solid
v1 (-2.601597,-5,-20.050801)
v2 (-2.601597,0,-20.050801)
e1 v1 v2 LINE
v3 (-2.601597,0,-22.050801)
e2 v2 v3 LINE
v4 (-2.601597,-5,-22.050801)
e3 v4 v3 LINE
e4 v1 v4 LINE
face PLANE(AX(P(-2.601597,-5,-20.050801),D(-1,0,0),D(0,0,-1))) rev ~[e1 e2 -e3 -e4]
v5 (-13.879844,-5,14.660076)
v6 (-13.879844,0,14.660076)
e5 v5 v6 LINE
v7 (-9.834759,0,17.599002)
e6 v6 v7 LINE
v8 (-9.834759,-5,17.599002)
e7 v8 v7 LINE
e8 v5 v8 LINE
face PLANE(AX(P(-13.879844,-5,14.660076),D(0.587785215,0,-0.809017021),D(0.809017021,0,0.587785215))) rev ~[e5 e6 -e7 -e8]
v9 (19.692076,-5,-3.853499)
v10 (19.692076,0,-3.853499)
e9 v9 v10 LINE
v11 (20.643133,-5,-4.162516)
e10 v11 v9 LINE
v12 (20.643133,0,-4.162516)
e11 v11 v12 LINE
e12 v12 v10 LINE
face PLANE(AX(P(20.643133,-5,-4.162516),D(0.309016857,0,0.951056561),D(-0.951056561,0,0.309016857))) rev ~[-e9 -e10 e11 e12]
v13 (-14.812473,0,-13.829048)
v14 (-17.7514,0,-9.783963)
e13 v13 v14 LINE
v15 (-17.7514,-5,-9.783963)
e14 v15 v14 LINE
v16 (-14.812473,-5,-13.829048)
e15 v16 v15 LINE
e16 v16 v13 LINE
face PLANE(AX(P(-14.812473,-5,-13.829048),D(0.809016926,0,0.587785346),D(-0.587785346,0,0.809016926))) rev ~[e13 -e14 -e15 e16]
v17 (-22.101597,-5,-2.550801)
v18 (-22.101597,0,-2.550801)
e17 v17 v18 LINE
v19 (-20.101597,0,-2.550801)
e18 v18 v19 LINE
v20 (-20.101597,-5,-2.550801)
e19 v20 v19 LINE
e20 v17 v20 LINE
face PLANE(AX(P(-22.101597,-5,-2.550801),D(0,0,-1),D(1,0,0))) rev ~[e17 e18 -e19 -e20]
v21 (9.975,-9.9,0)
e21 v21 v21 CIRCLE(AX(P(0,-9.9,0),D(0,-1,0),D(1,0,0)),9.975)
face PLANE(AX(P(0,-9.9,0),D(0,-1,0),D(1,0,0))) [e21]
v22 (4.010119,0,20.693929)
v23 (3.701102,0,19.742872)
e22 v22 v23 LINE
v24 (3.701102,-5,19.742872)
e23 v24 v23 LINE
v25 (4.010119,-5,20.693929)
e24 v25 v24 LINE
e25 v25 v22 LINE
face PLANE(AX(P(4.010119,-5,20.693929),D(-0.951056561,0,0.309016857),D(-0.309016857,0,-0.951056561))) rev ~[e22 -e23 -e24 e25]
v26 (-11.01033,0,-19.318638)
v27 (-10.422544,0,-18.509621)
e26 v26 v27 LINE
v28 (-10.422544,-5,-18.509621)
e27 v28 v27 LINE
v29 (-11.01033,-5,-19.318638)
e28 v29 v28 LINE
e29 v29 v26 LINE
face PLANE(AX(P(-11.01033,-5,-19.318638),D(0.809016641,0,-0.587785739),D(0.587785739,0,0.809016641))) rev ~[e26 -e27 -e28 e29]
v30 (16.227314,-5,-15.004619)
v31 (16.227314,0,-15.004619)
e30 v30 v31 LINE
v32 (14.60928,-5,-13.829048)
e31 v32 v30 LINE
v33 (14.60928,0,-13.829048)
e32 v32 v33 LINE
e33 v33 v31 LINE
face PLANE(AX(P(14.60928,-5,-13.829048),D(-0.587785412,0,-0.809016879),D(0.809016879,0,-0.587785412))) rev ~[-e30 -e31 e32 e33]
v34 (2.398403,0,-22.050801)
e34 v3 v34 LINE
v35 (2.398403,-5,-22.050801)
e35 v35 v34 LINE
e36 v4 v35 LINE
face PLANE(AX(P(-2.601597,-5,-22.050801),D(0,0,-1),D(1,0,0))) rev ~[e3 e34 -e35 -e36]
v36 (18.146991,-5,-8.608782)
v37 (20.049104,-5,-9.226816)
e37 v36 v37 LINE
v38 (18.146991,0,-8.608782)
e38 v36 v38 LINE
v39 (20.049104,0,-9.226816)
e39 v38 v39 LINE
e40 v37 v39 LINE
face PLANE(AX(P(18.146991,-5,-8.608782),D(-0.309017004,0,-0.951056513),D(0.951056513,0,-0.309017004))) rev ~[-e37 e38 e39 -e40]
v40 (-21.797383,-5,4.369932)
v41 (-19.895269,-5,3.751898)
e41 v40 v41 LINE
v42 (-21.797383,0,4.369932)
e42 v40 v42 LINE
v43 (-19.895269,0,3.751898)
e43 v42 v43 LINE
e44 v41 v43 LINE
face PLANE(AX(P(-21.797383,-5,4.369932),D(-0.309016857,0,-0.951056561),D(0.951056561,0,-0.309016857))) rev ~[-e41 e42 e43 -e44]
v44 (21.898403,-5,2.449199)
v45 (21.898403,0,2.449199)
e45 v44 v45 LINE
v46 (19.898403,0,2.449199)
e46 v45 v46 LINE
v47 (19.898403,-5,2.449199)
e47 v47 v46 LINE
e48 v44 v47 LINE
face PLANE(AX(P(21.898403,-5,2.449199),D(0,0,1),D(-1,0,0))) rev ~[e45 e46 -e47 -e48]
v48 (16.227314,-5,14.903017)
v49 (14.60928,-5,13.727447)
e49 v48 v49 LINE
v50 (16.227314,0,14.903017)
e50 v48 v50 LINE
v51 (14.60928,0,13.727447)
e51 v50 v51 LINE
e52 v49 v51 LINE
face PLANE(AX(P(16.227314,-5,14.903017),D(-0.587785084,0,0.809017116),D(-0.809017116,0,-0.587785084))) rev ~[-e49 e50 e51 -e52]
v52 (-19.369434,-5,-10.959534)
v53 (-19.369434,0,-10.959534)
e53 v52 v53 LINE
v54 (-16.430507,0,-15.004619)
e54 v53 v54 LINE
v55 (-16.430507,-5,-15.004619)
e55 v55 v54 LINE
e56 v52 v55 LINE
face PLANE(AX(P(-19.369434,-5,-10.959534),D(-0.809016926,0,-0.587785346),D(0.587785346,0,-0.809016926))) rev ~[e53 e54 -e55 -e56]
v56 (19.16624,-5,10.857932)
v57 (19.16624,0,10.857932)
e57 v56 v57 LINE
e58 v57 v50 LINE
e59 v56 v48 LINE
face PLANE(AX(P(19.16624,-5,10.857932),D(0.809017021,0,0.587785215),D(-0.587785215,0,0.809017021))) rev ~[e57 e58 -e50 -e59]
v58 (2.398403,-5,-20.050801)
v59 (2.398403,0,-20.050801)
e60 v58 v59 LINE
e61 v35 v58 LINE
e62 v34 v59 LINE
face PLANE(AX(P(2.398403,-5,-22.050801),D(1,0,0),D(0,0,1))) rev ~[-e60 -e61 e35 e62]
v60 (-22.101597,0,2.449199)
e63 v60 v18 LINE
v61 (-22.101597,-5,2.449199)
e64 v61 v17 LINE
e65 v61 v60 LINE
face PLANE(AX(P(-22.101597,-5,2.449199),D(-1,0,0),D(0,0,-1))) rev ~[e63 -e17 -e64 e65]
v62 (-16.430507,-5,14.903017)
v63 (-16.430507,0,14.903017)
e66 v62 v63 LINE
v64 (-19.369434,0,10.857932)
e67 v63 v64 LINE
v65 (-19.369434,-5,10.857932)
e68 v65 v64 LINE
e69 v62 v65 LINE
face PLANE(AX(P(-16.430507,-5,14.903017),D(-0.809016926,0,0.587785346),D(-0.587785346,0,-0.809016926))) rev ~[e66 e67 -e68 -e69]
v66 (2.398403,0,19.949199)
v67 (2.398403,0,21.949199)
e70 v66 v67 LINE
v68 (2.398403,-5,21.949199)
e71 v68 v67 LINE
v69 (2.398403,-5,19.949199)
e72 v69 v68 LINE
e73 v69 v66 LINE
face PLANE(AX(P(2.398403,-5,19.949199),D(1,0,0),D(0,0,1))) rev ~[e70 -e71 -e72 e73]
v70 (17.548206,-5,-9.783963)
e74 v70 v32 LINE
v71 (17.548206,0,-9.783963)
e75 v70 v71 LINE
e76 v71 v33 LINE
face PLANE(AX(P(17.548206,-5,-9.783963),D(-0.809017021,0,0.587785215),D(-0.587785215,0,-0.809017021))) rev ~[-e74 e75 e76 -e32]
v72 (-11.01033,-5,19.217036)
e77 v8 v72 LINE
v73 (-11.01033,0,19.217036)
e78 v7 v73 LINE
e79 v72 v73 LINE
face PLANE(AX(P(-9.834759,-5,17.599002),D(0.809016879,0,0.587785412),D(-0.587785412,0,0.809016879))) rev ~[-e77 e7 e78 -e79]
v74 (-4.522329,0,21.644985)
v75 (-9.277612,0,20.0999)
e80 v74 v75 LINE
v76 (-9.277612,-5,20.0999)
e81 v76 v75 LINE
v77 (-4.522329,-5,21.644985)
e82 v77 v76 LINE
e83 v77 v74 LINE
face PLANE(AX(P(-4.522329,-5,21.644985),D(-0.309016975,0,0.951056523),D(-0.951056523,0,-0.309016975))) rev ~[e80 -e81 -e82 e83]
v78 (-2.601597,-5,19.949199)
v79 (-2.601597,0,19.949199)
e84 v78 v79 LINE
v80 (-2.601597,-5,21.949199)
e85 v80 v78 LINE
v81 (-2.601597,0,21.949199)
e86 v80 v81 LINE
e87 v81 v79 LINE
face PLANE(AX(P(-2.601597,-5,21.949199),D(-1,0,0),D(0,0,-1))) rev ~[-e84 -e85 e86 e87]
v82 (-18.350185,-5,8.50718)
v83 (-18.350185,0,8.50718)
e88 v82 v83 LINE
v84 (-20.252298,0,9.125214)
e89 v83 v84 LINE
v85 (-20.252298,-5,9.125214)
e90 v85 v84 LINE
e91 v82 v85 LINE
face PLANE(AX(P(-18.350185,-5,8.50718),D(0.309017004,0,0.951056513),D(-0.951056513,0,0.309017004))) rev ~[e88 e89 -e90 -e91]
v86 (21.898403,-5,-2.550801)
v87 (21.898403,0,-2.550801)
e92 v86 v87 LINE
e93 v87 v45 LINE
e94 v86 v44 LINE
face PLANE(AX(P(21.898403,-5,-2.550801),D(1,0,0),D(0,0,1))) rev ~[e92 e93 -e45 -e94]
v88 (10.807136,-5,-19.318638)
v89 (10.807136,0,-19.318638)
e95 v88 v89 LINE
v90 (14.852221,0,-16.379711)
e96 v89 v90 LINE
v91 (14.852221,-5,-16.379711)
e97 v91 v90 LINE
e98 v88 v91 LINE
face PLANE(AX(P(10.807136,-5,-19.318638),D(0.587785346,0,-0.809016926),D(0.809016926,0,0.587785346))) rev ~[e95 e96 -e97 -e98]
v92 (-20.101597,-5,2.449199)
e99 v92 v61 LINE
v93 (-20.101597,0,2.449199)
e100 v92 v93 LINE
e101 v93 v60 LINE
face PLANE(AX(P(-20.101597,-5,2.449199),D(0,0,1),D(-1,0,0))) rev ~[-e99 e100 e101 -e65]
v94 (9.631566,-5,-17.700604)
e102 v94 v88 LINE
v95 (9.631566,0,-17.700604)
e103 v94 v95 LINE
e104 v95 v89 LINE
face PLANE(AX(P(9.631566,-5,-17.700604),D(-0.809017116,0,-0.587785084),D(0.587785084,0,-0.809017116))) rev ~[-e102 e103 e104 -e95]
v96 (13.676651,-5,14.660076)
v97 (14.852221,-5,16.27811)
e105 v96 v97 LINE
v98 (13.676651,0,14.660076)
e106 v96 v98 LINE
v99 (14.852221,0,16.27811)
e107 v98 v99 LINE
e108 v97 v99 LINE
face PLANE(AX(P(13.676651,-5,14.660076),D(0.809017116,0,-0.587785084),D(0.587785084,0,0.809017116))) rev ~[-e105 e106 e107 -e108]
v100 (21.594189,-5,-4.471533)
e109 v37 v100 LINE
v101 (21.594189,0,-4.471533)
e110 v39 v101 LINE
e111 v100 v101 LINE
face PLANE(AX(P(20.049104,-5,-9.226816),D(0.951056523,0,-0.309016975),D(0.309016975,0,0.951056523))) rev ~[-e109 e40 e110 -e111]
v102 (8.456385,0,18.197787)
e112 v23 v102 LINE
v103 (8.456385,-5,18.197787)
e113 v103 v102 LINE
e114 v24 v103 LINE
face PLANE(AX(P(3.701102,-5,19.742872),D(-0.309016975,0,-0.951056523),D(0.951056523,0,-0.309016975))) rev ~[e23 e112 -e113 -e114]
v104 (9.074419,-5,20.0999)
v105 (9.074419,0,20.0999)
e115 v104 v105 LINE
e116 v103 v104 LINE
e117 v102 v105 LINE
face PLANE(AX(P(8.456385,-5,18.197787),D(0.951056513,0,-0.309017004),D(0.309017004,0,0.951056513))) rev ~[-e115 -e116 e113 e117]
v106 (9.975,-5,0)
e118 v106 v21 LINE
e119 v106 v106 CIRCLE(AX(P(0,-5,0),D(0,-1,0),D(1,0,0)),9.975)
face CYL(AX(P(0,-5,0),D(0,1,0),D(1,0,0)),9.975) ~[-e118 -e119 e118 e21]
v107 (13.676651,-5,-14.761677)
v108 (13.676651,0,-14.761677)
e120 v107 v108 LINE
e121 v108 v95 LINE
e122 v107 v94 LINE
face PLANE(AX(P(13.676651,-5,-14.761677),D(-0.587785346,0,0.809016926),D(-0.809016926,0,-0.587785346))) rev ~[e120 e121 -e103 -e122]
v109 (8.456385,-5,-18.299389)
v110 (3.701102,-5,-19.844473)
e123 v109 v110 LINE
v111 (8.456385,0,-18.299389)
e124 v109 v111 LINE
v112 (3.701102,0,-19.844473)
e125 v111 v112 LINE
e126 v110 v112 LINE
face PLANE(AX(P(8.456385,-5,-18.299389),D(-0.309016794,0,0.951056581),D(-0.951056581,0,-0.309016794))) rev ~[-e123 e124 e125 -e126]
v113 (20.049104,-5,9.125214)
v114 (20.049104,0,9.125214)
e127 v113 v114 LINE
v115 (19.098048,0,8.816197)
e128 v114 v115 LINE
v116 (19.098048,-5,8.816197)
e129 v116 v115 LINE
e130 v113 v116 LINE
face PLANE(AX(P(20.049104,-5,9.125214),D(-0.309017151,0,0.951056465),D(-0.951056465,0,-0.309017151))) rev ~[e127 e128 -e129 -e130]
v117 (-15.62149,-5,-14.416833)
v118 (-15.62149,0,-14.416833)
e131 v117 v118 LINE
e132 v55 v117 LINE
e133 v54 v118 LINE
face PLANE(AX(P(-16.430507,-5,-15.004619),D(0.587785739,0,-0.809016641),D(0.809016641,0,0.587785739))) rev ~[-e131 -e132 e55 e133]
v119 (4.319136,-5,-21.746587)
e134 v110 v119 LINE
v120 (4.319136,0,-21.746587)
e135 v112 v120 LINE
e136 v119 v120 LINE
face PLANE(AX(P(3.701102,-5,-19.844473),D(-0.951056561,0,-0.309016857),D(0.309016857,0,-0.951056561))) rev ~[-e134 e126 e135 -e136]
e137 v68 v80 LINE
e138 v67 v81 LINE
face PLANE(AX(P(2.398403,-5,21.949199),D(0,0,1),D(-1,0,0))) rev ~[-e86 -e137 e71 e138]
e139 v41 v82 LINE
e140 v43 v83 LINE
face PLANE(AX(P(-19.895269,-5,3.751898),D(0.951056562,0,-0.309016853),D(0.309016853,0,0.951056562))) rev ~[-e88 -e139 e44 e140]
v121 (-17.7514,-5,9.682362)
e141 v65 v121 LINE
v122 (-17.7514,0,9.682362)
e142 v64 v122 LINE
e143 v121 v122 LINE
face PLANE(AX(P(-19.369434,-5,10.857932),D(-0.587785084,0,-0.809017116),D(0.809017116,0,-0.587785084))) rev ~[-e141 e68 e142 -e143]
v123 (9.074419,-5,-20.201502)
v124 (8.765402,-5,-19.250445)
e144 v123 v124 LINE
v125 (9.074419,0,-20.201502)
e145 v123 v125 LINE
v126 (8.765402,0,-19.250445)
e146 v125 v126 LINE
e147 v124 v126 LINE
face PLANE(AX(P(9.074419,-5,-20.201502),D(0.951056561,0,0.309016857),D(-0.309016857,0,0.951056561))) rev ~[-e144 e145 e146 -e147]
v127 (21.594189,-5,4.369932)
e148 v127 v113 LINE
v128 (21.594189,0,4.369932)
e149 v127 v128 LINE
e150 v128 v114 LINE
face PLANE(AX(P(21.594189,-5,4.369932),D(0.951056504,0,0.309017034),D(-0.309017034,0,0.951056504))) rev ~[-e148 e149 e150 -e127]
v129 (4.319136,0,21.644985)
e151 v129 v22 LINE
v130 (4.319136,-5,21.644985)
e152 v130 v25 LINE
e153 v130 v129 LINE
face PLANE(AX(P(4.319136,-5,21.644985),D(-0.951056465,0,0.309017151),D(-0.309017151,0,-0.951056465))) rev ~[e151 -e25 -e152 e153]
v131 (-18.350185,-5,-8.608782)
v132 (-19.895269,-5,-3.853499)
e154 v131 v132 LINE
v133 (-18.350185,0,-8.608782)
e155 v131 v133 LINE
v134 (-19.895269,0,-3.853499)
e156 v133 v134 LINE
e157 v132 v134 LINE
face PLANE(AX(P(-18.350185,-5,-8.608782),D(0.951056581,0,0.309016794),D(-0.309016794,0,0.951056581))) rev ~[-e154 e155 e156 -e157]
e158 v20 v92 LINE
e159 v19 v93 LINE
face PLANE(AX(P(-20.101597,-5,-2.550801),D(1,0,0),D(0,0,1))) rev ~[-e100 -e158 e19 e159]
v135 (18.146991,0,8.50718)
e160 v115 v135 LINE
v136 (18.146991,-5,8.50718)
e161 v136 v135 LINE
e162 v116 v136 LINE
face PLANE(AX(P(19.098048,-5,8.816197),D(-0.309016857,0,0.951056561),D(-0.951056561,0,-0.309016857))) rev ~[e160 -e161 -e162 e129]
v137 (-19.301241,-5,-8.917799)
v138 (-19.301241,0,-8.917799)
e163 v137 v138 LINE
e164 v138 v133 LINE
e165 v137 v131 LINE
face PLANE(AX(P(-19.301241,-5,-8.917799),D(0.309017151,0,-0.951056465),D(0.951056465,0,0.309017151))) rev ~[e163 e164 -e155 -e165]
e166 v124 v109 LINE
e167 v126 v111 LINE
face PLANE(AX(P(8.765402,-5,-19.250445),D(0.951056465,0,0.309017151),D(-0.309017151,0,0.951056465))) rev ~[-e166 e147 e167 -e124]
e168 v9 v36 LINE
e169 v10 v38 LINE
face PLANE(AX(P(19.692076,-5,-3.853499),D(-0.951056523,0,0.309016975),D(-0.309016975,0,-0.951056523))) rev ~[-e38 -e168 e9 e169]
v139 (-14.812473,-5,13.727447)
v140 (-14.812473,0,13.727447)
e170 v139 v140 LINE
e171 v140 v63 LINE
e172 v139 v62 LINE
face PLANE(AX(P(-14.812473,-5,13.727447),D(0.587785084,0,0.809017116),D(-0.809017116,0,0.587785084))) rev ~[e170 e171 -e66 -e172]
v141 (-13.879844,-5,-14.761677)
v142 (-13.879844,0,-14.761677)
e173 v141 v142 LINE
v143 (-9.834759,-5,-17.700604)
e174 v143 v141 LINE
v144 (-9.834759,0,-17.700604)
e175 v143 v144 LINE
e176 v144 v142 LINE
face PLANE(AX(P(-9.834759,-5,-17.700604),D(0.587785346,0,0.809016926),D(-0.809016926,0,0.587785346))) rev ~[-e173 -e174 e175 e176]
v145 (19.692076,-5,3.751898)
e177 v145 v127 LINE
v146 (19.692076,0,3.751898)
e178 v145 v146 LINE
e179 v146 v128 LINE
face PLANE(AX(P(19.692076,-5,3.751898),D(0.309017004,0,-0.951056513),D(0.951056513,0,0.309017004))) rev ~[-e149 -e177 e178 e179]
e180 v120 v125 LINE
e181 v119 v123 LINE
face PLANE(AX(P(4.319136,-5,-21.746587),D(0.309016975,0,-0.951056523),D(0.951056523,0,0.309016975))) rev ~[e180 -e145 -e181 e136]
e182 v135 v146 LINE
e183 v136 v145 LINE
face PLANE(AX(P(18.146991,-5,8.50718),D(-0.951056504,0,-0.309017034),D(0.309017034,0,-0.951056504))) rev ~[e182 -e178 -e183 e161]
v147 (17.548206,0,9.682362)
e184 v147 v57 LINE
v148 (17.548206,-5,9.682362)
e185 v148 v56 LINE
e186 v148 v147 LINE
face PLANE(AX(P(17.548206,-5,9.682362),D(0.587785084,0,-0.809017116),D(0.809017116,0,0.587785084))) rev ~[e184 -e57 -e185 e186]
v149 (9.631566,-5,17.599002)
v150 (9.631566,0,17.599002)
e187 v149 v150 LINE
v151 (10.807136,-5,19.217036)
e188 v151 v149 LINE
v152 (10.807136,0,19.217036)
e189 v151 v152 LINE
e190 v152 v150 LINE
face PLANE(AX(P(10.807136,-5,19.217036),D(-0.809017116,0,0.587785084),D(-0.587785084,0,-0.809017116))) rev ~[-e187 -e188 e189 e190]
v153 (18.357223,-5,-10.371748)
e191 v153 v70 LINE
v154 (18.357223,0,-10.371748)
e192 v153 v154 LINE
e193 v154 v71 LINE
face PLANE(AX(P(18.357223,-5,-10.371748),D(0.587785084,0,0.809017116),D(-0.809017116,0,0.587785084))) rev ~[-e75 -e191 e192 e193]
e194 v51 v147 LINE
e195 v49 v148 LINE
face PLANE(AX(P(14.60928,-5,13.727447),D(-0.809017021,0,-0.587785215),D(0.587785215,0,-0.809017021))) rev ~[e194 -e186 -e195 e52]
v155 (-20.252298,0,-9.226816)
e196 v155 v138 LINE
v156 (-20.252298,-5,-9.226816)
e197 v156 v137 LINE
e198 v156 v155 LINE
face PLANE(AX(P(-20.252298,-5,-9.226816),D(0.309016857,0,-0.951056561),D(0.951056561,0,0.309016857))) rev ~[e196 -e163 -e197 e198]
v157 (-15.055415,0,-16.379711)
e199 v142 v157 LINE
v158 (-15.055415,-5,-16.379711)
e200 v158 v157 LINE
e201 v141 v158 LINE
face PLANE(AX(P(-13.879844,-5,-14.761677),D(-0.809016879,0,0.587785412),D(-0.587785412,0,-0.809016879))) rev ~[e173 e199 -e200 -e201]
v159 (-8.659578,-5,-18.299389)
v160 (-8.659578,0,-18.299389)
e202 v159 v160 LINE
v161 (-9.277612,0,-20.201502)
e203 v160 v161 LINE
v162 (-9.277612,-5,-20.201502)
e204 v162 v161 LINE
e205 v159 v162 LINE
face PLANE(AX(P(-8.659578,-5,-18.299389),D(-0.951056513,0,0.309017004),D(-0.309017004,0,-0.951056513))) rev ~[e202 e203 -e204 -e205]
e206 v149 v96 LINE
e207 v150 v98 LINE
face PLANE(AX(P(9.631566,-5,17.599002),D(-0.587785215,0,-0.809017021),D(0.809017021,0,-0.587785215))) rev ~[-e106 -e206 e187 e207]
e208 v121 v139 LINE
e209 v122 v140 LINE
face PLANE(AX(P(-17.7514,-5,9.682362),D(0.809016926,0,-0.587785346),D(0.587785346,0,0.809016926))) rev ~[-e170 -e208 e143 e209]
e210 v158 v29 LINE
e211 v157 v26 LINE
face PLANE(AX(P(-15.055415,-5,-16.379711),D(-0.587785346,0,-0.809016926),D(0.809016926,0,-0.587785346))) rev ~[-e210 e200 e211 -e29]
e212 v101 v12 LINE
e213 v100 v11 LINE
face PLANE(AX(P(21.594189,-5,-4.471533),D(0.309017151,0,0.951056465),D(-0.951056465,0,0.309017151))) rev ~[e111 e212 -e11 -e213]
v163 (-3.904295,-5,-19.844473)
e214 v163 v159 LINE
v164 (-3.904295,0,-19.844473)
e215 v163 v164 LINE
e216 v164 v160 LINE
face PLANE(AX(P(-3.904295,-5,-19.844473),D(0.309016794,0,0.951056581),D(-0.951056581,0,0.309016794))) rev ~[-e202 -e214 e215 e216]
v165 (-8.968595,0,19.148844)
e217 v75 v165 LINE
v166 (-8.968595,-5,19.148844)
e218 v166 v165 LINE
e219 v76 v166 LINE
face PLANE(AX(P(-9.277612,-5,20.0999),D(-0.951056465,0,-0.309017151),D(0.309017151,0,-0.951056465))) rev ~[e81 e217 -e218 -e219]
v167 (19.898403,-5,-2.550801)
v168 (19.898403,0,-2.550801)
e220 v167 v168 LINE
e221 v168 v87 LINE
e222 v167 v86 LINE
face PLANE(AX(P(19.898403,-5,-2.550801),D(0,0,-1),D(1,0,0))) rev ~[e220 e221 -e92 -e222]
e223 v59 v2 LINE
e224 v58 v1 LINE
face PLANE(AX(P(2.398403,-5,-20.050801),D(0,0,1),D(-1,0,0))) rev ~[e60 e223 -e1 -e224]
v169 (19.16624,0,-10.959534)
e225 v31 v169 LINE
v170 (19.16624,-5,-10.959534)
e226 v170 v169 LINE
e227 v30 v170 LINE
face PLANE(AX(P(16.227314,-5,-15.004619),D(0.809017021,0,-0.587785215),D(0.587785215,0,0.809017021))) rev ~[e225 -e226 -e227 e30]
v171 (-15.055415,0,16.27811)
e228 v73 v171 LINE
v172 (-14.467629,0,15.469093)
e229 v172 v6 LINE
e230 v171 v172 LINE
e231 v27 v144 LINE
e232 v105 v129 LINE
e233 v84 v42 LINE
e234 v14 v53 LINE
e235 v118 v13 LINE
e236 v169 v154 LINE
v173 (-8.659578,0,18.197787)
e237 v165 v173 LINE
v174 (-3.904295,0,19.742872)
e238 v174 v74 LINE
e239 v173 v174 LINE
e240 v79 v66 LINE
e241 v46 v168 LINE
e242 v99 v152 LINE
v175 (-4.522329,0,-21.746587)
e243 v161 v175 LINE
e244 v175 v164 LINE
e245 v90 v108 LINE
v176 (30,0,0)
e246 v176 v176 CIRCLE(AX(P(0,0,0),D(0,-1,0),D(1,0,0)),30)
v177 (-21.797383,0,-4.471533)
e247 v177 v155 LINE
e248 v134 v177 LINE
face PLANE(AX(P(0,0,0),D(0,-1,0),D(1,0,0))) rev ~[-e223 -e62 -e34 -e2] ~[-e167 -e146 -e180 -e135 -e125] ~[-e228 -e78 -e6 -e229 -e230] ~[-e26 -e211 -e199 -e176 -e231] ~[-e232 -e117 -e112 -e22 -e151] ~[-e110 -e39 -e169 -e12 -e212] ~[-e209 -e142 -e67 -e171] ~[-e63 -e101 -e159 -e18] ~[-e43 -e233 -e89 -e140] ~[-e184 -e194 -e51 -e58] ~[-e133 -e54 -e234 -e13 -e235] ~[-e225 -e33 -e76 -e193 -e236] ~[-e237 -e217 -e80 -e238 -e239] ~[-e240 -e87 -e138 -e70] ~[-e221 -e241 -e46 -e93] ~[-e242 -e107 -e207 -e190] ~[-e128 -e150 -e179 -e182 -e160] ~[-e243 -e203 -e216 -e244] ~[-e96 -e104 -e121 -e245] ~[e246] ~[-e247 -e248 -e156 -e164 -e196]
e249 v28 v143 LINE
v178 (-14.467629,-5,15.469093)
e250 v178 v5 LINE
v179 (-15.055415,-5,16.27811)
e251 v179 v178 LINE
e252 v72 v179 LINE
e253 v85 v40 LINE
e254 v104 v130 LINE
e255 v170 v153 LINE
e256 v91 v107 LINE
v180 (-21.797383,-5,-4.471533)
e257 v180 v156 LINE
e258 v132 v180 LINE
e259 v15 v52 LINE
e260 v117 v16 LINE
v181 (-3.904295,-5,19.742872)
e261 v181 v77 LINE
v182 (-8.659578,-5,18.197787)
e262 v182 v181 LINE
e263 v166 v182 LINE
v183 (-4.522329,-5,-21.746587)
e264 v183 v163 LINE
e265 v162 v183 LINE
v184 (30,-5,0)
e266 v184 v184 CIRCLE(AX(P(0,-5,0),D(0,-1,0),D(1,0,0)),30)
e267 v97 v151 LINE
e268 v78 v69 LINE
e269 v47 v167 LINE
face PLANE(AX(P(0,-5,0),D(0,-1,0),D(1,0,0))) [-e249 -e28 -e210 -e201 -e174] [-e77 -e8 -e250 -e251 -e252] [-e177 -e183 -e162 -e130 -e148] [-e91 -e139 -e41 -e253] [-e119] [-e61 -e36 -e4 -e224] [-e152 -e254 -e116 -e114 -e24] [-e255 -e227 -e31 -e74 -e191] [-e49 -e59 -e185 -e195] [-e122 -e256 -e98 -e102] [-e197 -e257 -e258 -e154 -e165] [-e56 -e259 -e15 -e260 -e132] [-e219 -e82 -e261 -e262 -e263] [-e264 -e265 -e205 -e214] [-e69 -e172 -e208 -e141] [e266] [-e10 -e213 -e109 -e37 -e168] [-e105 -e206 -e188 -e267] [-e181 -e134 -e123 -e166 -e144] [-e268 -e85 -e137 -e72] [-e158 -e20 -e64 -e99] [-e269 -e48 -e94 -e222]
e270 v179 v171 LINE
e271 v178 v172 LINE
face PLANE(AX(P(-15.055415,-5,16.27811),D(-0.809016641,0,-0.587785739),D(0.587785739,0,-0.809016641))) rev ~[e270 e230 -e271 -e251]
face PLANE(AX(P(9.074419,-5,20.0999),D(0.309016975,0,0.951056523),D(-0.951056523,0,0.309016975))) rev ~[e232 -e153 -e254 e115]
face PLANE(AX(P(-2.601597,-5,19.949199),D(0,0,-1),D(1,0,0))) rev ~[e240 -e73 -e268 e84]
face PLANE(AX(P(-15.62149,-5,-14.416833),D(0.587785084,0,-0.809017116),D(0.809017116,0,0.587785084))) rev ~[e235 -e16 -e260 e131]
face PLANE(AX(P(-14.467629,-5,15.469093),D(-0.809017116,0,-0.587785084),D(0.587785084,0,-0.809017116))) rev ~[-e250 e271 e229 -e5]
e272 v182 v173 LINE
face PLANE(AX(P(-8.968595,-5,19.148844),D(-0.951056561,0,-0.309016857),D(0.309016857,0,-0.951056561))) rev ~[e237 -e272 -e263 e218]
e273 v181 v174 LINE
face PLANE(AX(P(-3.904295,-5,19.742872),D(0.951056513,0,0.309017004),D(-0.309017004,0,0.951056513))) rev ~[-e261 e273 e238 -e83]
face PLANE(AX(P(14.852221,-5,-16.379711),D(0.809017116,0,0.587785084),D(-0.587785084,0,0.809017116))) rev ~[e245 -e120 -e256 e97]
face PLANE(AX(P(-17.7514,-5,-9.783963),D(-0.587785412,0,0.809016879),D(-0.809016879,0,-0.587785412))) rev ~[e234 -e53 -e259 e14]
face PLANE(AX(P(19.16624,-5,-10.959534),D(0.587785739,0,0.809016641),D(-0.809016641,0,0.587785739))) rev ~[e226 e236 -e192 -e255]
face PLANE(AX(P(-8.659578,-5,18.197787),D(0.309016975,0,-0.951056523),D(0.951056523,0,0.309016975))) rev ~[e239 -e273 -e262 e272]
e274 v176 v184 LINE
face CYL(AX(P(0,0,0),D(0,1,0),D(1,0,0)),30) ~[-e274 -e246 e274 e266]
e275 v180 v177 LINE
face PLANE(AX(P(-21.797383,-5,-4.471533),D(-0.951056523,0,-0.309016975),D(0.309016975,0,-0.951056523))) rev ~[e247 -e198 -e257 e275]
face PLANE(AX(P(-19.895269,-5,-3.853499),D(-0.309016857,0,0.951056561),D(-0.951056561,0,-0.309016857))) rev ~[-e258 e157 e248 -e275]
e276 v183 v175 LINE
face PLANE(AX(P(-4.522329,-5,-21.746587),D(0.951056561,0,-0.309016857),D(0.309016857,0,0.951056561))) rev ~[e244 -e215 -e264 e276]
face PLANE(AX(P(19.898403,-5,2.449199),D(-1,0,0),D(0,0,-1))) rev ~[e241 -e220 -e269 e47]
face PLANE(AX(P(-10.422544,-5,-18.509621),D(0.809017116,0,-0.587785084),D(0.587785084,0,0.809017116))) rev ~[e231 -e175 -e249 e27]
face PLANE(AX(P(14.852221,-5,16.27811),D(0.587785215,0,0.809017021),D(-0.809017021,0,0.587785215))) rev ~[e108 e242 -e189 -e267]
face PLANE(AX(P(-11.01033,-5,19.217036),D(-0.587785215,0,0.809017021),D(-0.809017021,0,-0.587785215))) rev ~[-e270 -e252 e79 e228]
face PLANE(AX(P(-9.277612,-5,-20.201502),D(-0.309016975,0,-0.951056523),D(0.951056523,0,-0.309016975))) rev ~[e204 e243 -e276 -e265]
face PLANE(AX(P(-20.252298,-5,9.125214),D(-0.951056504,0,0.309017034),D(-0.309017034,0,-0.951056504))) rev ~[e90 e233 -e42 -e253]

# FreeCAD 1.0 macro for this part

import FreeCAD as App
import Part
import Sketcher

V = App.Vector
Q = App.Units.Quantity

doc = App.newDocument("Part")
body = doc.addObject("PartDesign::Body", "Body")

sketch1 = body.newObject("Sketcher::SketchObject", "Sketch")
sketch1.AttachmentSupport = (doc.getObject("XZ_Plane"), [""])
sketch1.MapMode = "FlatFace"
sketch1.addGeometry(Part.Circle(V(0, 0, 0), V(0, 0, 1), 30), False)
sketch1.addConstraint(Sketcher.Constraint("Coincident", 0, 3, -1, 1))
sketch1.addConstraint(Sketcher.Constraint("Diameter", 0, 60.0))
pad1 = body.newObject("PartDesign::Pad", "Pad")
pad1.Profile = sketch1
pad1.Length = 5

sketch2 = body.newObject("Sketcher::SketchObject", "Sketch001")
sketch2.AttachmentSupport = (doc.getObject("XZ_Plane"), [""])
sketch2.MapMode = "FlatFace"
sketch2.AttachmentOffset = App.Placement(V(0, 0, 5), App.Rotation())
sketch2.addGeometry(Part.LineSegment(V(-2.6, 21.9, 0), V(-2.6, 19.9, 0)), False)
sketch2.addGeometry(Part.LineSegment(V(-2.6, 19.9, 0), V(2.4, 19.9, 0)), False)
sketch2.addGeometry(Part.LineSegment(V(2.4, 19.9, 0), V(2.4, 21.9, 0)), False)
sketch2.addGeometry(Part.LineSegment(V(2.4, 21.9, 0), V(-2.6, 21.9, 0)), False)
sketch2.addGeometry(Part.LineSegment(V(-4.5, 21.6, 0), V(-9.3, 20.1, 0)), False)
sketch2.addGeometry(Part.LineSegment(V(-9.3, 20.1, 0), V(-9, 19.1, 0)), False)
sketch2.addGeometry(Part.LineSegment(V(-9, 19.1, 0), V(-8.7, 18.2, 0)), False)
sketch2.addGeometry(Part.LineSegment(V(-8.7, 18.2, 0), V(-3.9, 19.7, 0)), False)
sketch2.addGeometry(Part.LineSegment(V(-3.9, 19.7, 0), V(-4.5, 21.6, 0)), False)
sketch2.addGeometry(Part.LineSegment(V(-11, 19.2, 0), V(-15.1, 16.3, 0)), False)
sketch2.addGeometry(Part.LineSegment(V(-15.1, 16.3, 0), V(-14.5, 15.5, 0)), False)
sketch2.addGeometry(Part.LineSegment(V(-14.5, 15.5, 0), V(-13.9, 14.7, 0)), False)
sketch2.addGeometry(Part.LineSegment(V(-13.9, 14.7, 0), V(-9.8, 17.6, 0)), False)
sketch2.addGeometry(Part.LineSegment(V(-9.8, 17.6, 0), V(-11, 19.2, 0)), False)
sketch2.addGeometry(Part.LineSegment(V(-16.4, 14.9, 0), V(-19.4, 10.9, 0)), False)
sketch2.addGeometry(Part.LineSegment(V(-19.4, 10.9, 0), V(-17.8, 9.7, 0)), False)
sketch2.addGeometry(Part.LineSegment(V(-17.8, 9.7, 0), V(-14.8, 13.7, 0)), False)
sketch2.addGeometry(Part.LineSegment(V(-14.8, 13.7, 0), V(-16.4, 14.9, 0)), False)
sketch2.addGeometry(Part.LineSegment(V(-20.3, 9.1, 0), V(-21.8, 4.4, 0)), False)
sketch2.addGeometry(Part.LineSegment(V(-21.8, 4.4, 0), V(-19.9, 3.8, 0)), False)
sketch2.addGeometry(Part.LineSegment(V(-19.9, 3.8, 0), V(-18.4, 8.5, 0)), False)
sketch2.addGeometry(Part.LineSegment(V(-18.4, 8.5, 0), V(-20.3, 9.1, 0)), False)
sketch2.addGeometry(Part.LineSegment(V(-22.1, 2.4, 0), V(-22.1, -2.6, 0)), False)
sketch2.addGeometry(Part.LineSegment(V(-22.1, -2.6, 0), V(-20.1, -2.6, 0)), False)
sketch2.addGeometry(Part.LineSegment(V(-20.1, -2.6, 0), V(-20.1, 2.4, 0)), False)
sketch2.addGeometry(Part.LineSegment(V(-20.1, 2.4, 0), V(-22.1, 2.4, 0)), False)
sketch2.addGeometry(Part.LineSegment(V(-21.8, -4.5, 0), V(-20.3, -9.2, 0)), False)
sketch2.addGeometry(Part.LineSegment(V(-20.3, -9.2, 0), V(-19.3, -8.9, 0)), False)
sketch2.addGeometry(Part.LineSegment(V(-19.3, -8.9, 0), V(-18.4, -8.6, 0)), False)
sketch2.addGeometry(Part.LineSegment(V(-18.4, -8.6, 0), V(-19.9, -3.9, 0)), False)
sketch2.addGeometry(Part.LineSegment(V(-19.9, -3.9, 0), V(-21.8, -4.5, 0)), False)
sketch2.addGeometry(Part.LineSegment(V(-19.4, -11, 0), V(-16.4, -15, 0)), False)
sketch2.addGeometry(Part.LineSegment(V(-16.4, -15, 0), V(-15.6, -14.4, 0)), False)
sketch2.addGeometry(Part.LineSegment(V(-15.6, -14.4, 0), V(-14.8, -13.8, 0)), False)
sketch2.addGeometry(Part.LineSegment(V(-14.8, -13.8, 0), V(-17.8, -9.8, 0)), False)
sketch2.addGeometry(Part.LineSegment(V(-17.8, -9.8, 0), V(-19.4, -11, 0)), False)
sketch2.addGeometry(Part.LineSegment(V(-15.1, -16.4, 0), V(-11, -19.3, 0)), False)
sketch2.addGeometry(Part.LineSegment(V(-11, -19.3, 0), V(-10.4, -18.5, 0)), False)
sketch2.addGeometry(Part.LineSegment(V(-10.4, -18.5, 0), V(-9.8, -17.7, 0)), False)
sketch2.addGeometry(Part.LineSegment(V(-9.8, -17.7, 0), V(-13.9, -14.8, 0)), False)
sketch2.addGeometry(Part.LineSegment(V(-13.9, -14.8, 0), V(-15.1, -16.4, 0)), False)
sketch2.addGeometry(Part.LineSegment(V(-9.3, -20.2, 0), V(-4.5, -21.7, 0)), False)
sketch2.addGeometry(Part.LineSegment(V(-4.5, -21.7, 0), V(-3.9, -19.8, 0)), False)
sketch2.addGeometry(Part.LineSegment(V(-3.9, -19.8, 0), V(-8.7, -18.3, 0)), False)
sketch2.addGeometry(Part.LineSegment(V(-8.7, -18.3, 0), V(-9.3, -20.2, 0)), False)
sketch2.addGeometry(Part.LineSegment(V(-2.6, -22.1, 0), V(2.4, -22.1, 0)), False)
sketch2.addGeometry(Part.LineSegment(V(2.4, -22.1, 0), V(2.4, -20.1, 0)), False)
sketch2.addGeometry(Part.LineSegment(V(2.4, -20.1, 0), V(-2.6, -20.1, 0)), False)
sketch2.addGeometry(Part.LineSegment(V(-2.6, -20.1, 0), V(-2.6, -22.1, 0)), False)
sketch2.addGeometry(Part.LineSegment(V(4.3, -21.7, 0), V(9.1, -20.2, 0)), False)
sketch2.addGeometry(Part.LineSegment(V(9.1, -20.2, 0), V(8.8, -19.3, 0)), False)
sketch2.addGeometry(Part.LineSegment(V(8.8, -19.3, 0), V(8.5, -18.3, 0)), False)
sketch2.addGeometry(Part.LineSegment(V(8.5, -18.3, 0), V(3.7, -19.8, 0)), False)
sketch2.addGeometry(Part.LineSegment(V(3.7, -19.8, 0), V(4.3, -21.7, 0)), False)
sketch2.addGeometry(Part.LineSegment(V(10.8, -19.3, 0), V(14.9, -16.4, 0)), False)
sketch2.addGeometry(Part.LineSegment(V(14.9, -16.4, 0), V(13.7, -14.8, 0)), False)
sketch2.addGeometry(Part.LineSegment(V(13.7, -14.8, 0), V(9.6, -17.7, 0)), False)
sketch2.addGeometry(Part.LineSegment(V(9.6, -17.7, 0), V(10.8, -19.3, 0)), False)
sketch2.addGeometry(Part.LineSegment(V(16.2, -15, 0), V(19.2, -11, 0)), False)
sketch2.addGeometry(Part.LineSegment(V(19.2, -11, 0), V(18.4, -10.4, 0)), False)
sketch2.addGeometry(Part.LineSegment(V(18.4, -10.4, 0), V(17.5, -9.8, 0)), False)
sketch2.addGeometry(Part.LineSegment(V(17.5, -9.8, 0), V(14.6, -13.8, 0)), False)
sketch2.addGeometry(Part.LineSegment(V(14.6, -13.8, 0), V(16.2, -15, 0)), False)
sketch2.addGeometry(Part.LineSegment(V(20, -9.2, 0), V(21.6, -4.5, 0)), False)
sketch2.addGeometry(Part.LineSegment(V(21.6, -4.5, 0), V(20.6, -4.2, 0)), False)
sketch2.addGeometry(Part.LineSegment(V(20.6, -4.2, 0), V(19.7, -3.9, 0)), False)
sketch2.addGeometry(Part.LineSegment(V(19.7, -3.9, 0), V(18.1, -8.6, 0)), False)
sketch2.addGeometry(Part.LineSegment(V(18.1, -8.6, 0), V(20, -9.2, 0)), False)
sketch2.addGeometry(Part.LineSegment(V(21.9, -2.6, 0), V(21.9, 2.4, 0)), False)
sketch2.addGeometry(Part.LineSegment(V(21.9, 2.4, 0), V(19.9, 2.4, 0)), False)
sketch2.addGeometry(Part.LineSegment(V(19.9, 2.4, 0), V(19.9, -2.6, 0)), False)
sketch2.addGeometry(Part.LineSegment(V(19.9, -2.6, 0), V(21.9, -2.6, 0)), False)
sketch2.addGeometry(Part.LineSegment(V(21.6, 4.4, 0), V(20, 9.1, 0)), False)
sketch2.addGeometry(Part.LineSegment(V(20, 9.1, 0), V(19.1, 8.8, 0)), False)
sketch2.addGeometry(Part.LineSegment(V(19.1, 8.8, 0), V(18.1, 8.5, 0)), False)
sketch2.addGeometry(Part.LineSegment(V(18.1, 8.5, 0), V(19.7, 3.8, 0)), False)
sketch2.addGeometry(Part.LineSegment(V(19.7, 3.8, 0), V(21.6, 4.4, 0)), False)
sketch2.addGeometry(Part.LineSegment(V(19.2, 10.9, 0), V(16.2, 14.9, 0)), False)
sketch2.addGeometry(Part.LineSegment(V(16.2, 14.9, 0), V(14.6, 13.7, 0)), False)
sketch2.addGeometry(Part.LineSegment(V(14.6, 13.7, 0), V(17.5, 9.7, 0)), False)
sketch2.addGeometry(Part.LineSegment(V(17.5, 9.7, 0), V(19.2, 10.9, 0)), False)
sketch2.addGeometry(Part.LineSegment(V(14.9, 16.3, 0), V(10.8, 19.2, 0)), False)
sketch2.addGeometry(Part.LineSegment(V(10.8, 19.2, 0), V(9.6, 17.6, 0)), False)
sketch2.addGeometry(Part.LineSegment(V(9.6, 17.6, 0), V(13.7, 14.7, 0)), False)
sketch2.addGeometry(Part.LineSegment(V(13.7, 14.7, 0), V(14.9, 16.3, 0)), False)
sketch2.addGeometry(Part.LineSegment(V(9.1, 20.1, 0), V(4.3, 21.6, 0)), False)
sketch2.addGeometry(Part.LineSegment(V(4.3, 21.6, 0), V(4, 20.7, 0)), False)
sketch2.addGeometry(Part.LineSegment(V(4, 20.7, 0), V(3.7, 19.7, 0)), False)
sketch2.addGeometry(Part.LineSegment(V(3.7, 19.7, 0), V(8.5, 18.2, 0)), False)
sketch2.addGeometry(Part.LineSegment(V(8.5, 18.2, 0), V(9.1, 20.1, 0)), False)
sketch2.addConstraint(Sketcher.Constraint("Coincident", 0, 2, 1, 1))
sketch2.addConstraint(Sketcher.Constraint("Coincident", 1, 2, 2, 1))
sketch2.addConstraint(Sketcher.Constraint("Coincident", 2, 2, 3, 1))
sketch2.addConstraint(Sketcher.Constraint("Coincident", 3, 2, 0, 1))
sketch2.addConstraint(Sketcher.Constraint("Coincident", 4, 2, 5, 1))
sketch2.addConstraint(Sketcher.Constraint("Coincident", 5, 2, 6, 1))
sketch2.addConstraint(Sketcher.Constraint("Coincident", 6, 2, 7, 1))
sketch2.addConstraint(Sketcher.Constraint("Coincident", 7, 2, 8, 1))
sketch2.addConstraint(Sketcher.Constraint("Coincident", 8, 2, 4, 1))
sketch2.addConstraint(Sketcher.Constraint("Coincident", 9, 2, 10, 1))
sketch2.addConstraint(Sketcher.Constraint("Coincident", 10, 2, 11, 1))
sketch2.addConstraint(Sketcher.Constraint("Coincident", 11, 2, 12, 1))
sketch2.addConstraint(Sketcher.Constraint("Coincident", 12, 2, 13, 1))
sketch2.addConstraint(Sketcher.Constraint("Coincident", 13, 2, 9, 1))
sketch2.addConstraint(Sketcher.Constraint("Coincident", 14, 2, 15, 1))
sketch2.addConstraint(Sketcher.Constraint("Coincident", 15, 2, 16, 1))
sketch2.addConstraint(Sketcher.Constraint("Coincident", 16, 2, 17, 1))
sketch2.addConstraint(Sketcher.Constraint("Coincident", 17, 2, 14, 1))
sketch2.addConstraint(Sketcher.Constraint("Coincident", 18, 2, 19, 1))
sketch2.addConstraint(Sketcher.Constraint("Coincident", 19, 2, 20, 1))
sketch2.addConstraint(Sketcher.Constraint("Coincident", 20, 2, 21, 1))
sketch2.addConstraint(Sketcher.Constraint("Coincident", 21, 2, 18, 1))
sketch2.addConstraint(Sketcher.Constraint("Coincident", 22, 2, 23, 1))
sketch2.addConstraint(Sketcher.Constraint("Coincident", 23, 2, 24, 1))
sketch2.addConstraint(Sketcher.Constraint("Coincident", 24, 2, 25, 1))
sketch2.addConstraint(Sketcher.Constraint("Coincident", 25, 2, 22, 1))
sketch2.addConstraint(Sketcher.Constraint("Coincident", 26, 2, 27, 1))
sketch2.addConstraint(Sketcher.Constraint("Coincident", 27, 2, 28, 1))
sketch2.addConstraint(Sketcher.Constraint("Coincident", 28, 2, 29, 1))
sketch2.addConstraint(Sketcher.Constraint("Coincident", 29, 2, 30, 1))
sketch2.addConstraint(Sketcher.Constraint("Coincident", 30, 2, 26, 1))
sketch2.addConstraint(Sketcher.Constraint("Coincident", 31, 2, 32, 1))
sketch2.addConstraint(Sketcher.Constraint("Coincident", 32, 2, 33, 1))
sketch2.addConstraint(Sketcher.Constraint("Coincident", 33, 2, 34, 1))
sketch2.addConstraint(Sketcher.Constraint("Coincident", 34, 2, 35, 1))
sketch2.addConstraint(Sketcher.Constraint("Coincident", 35, 2, 31, 1))
sketch2.addConstraint(Sketcher.Constraint("Coincident", 36, 2, 37, 1))
sketch2.addConstraint(Sketcher.Constraint("Coincident", 37, 2, 38, 1))
sketch2.addConstraint(Sketcher.Constraint("Coincident", 38, 2, 39, 1))
sketch2.addConstraint(Sketcher.Constraint("Coincident", 39, 2, 40, 1))
sketch2.addConstraint(Sketcher.Constraint("Coincident", 40, 2, 36, 1))
sketch2.addConstraint(Sketcher.Constraint("Coincident", 41, 2, 42, 1))
sketch2.addConstraint(Sketcher.Constraint("Coincident", 42, 2, 43, 1))
sketch2.addConstraint(Sketcher.Constraint("Coincident", 43, 2, 44, 1))
sketch2.addConstraint(Sketcher.Constraint("Coincident", 44, 2, 41, 1))
sketch2.addConstraint(Sketcher.Constraint("Coincident", 45, 2, 46, 1))
sketch2.addConstraint(Sketcher.Constraint("Coincident", 46, 2, 47, 1))
sketch2.addConstraint(Sketcher.Constraint("Coincident", 47, 2, 48, 1))
sketch2.addConstraint(Sketcher.Constraint("Coincident", 48, 2, 45, 1))
sketch2.addConstraint(Sketcher.Constraint("Coincident", 49, 2, 50, 1))
sketch2.addConstraint(Sketcher.Constraint("Coincident", 50, 2, 51, 1))
sketch2.addConstraint(Sketcher.Constraint("Coincident", 51, 2, 52, 1))
sketch2.addConstraint(Sketcher.Constraint("Coincident", 52, 2, 53, 1))
sketch2.addConstraint(Sketcher.Constraint("Coincident", 53, 2, 49, 1))
sketch2.addConstraint(Sketcher.Constraint("Coincident", 54, 2, 55, 1))
sketch2.addConstraint(Sketcher.Constraint("Coincident", 55, 2, 56, 1))
sketch2.addConstraint(Sketcher.Constraint("Coincident", 56, 2, 57, 1))
sketch2.addConstraint(Sketcher.Constraint("Coincident", 57, 2, 54, 1))
sketch2.addConstraint(Sketcher.Constraint("Coincident", 58, 2, 59, 1))
sketch2.addConstraint(Sketcher.Constraint("Coincident", 59, 2, 60, 1))
sketch2.addConstraint(Sketcher.Constraint("Coincident", 60, 2, 61, 1))
sketch2.addConstraint(Sketcher.Constraint("Coincident", 61, 2, 62, 1))
sketch2.addConstraint(Sketcher.Constraint("Coincident", 62, 2, 58, 1))
sketch2.addConstraint(Sketcher.Constraint("Coincident", 63, 2, 64, 1))
sketch2.addConstraint(Sketcher.Constraint("Coincident", 64, 2, 65, 1))
sketch2.addConstraint(Sketcher.Constraint("Coincident", 65, 2, 66, 1))
sketch2.addConstraint(Sketcher.Constraint("Coincident", 66, 2, 67, 1))
sketch2.addConstraint(Sketcher.Constraint("Coincident", 67, 2, 63, 1))
sketch2.addConstraint(Sketcher.Constraint("Coincident", 68, 2, 69, 1))
sketch2.addConstraint(Sketcher.Constraint("Coincident", 69, 2, 70, 1))
sketch2.addConstraint(Sketcher.Constraint("Coincident", 70, 2, 71, 1))
sketch2.addConstraint(Sketcher.Constraint("Coincident", 71, 2, 68, 1))
sketch2.addConstraint(Sketcher.Constraint("Coincident", 72, 2, 73, 1))
sketch2.addConstraint(Sketcher.Constraint("Coincident", 73, 2, 74, 1))
sketch2.addConstraint(Sketcher.Constraint("Coincident", 74, 2, 75, 1))
sketch2.addConstraint(Sketcher.Constraint("Coincident", 75, 2, 76, 1))
sketch2.addConstraint(Sketcher.Constraint("Coincident", 76, 2, 72, 1))
sketch2.addConstraint(Sketcher.Constraint("Coincident", 77, 2, 78, 1))
sketch2.addConstraint(Sketcher.Constraint("Coincident", 78, 2, 79, 1))
sketch2.addConstraint(Sketcher.Constraint("Coincident", 79, 2, 80, 1))
sketch2.addConstraint(Sketcher.Constraint("Coincident", 80, 2, 77, 1))
sketch2.addConstraint(Sketcher.Constraint("Coincident", 81, 2, 82, 1))
sketch2.addConstraint(Sketcher.Constraint("Coincident", 82, 2, 83, 1))
sketch2.addConstraint(Sketcher.Constraint("Coincident", 83, 2, 84, 1))
sketch2.addConstraint(Sketcher.Constraint("Coincident", 84, 2, 81, 1))
sketch2.addConstraint(Sketcher.Constraint("Coincident", 85, 2, 86, 1))
sketch2.addConstraint(Sketcher.Constraint("Coincident", 86, 2, 87, 1))
sketch2.addConstraint(Sketcher.Constraint("Coincident", 87, 2, 88, 1))
sketch2.addConstraint(Sketcher.Constraint("Coincident", 88, 2, 89, 1))
sketch2.addConstraint(Sketcher.Constraint("Coincident", 89, 2, 85, 1))
sketch2.addConstraint(Sketcher.Constraint("Vertical", 0))
sketch2.addConstraint(Sketcher.Constraint("Horizontal", 1))
sketch2.addConstraint(Sketcher.Constraint("Vertical", 2))
sketch2.addConstraint(Sketcher.Constraint("Horizontal", 3))
sketch2.addConstraint(Sketcher.Constraint("Vertical", 22))
sketch2.addConstraint(Sketcher.Constraint("Horizontal", 23))
sketch2.addConstraint(Sketcher.Constraint("Vertical", 24))
sketch2.addConstraint(Sketcher.Constraint("Horizontal", 25))
sketch2.addConstraint(Sketcher.Constraint("Horizontal", 45))
sketch2.addConstraint(Sketcher.Constraint("Vertical", 46))
sketch2.addConstraint(Sketcher.Constraint("Horizontal", 47))
sketch2.addConstraint(Sketcher.Constraint("Vertical", 48))
sketch2.addConstraint(Sketcher.Constraint("Vertical", 68))
sketch2.addConstraint(Sketcher.Constraint("Horizontal", 69))
sketch2.addConstraint(Sketcher.Constraint("Vertical", 70))
sketch2.addConstraint(Sketcher.Constraint("Horizontal", 71))
sketch2.addConstraint(Sketcher.Constraint("Perpendicular", 4, 5))
sketch2.addConstraint(Sketcher.Constraint("Parallel", 5, 6))
sketch2.addConstraint(Sketcher.Constraint("Perpendicular", 6, 7))
sketch2.addConstraint(Sketcher.Constraint("Perpendicular", 7, 8))
sketch2.addConstraint(Sketcher.Constraint("Perpendicular", 9, 10))
sketch2.addConstraint(Sketcher.Constraint("Parallel", 10, 11))
sketch2.addConstraint(Sketcher.Constraint("Perpendicular", 11, 12))
sketch2.addConstraint(Sketcher.Constraint("Perpendicular", 12, 13))
sketch2.addConstraint(Sketcher.Constraint("Perpendicular", 14, 15))
sketch2.addConstraint(Sketcher.Constraint("Perpendicular", 15, 16))
sketch2.addConstraint(Sketcher.Constraint("Perpendicular", 16, 17))
sketch2.addConstraint(Sketcher.Constraint("Perpendicular", 18, 19))
sketch2.addConstraint(Sketcher.Constraint("Perpendicular", 19, 20))
sketch2.addConstraint(Sketcher.Constraint("Perpendicular", 20, 21))
sketch2.addConstraint(Sketcher.Constraint("Parallel", 8, 26))
sketch2.addConstraint(Sketcher.Constraint("Perpendicular", 26, 27))
sketch2.addConstraint(Sketcher.Constraint("Parallel", 27, 28))
sketch2.addConstraint(Sketcher.Constraint("Perpendicular", 28, 29))
sketch2.addConstraint(Sketcher.Constraint("Perpendicular", 29, 30))
sketch2.addConstraint(Sketcher.Constraint("Parallel", 13, 31))
sketch2.addConstraint(Sketcher.Constraint("Perpendicular", 31, 32))
sketch2.addConstraint(Sketcher.Constraint("Parallel", 32, 33))
sketch2.addConstraint(Sketcher.Constraint("Perpendicular", 33, 34))
sketch2.addConstraint(Sketcher.Constraint("Perpendicular", 34, 35))
sketch2.addConstraint(Sketcher.Constraint("Parallel", 17, 36))
sketch2.addConstraint(Sketcher.Constraint("Perpendicular", 36, 37))
sketch2.addConstraint(Sketcher.Constraint("Parallel", 37, 38))
sketch2.addConstraint(Sketcher.Constraint("Perpendicular", 38, 39))
sketch2.addConstraint(Sketcher.Constraint("Perpendicular", 39, 40))
sketch2.addConstraint(Sketcher.Constraint("Parallel", 21, 41))
sketch2.addConstraint(Sketcher.Constraint("Perpendicular", 41, 42))
sketch2.addConstraint(Sketcher.Constraint("Perpendicular", 42, 43))
sketch2.addConstraint(Sketcher.Constraint("Perpendicular", 43, 44))
sketch2.addConstraint(Sketcher.Constraint("Parallel", 30, 49))
sketch2.addConstraint(Sketcher.Constraint("Perpendicular", 49, 50))
sketch2.addConstraint(Sketcher.Constraint("Parallel", 50, 51))
sketch2.addConstraint(Sketcher.Constraint("Perpendicular", 51, 52))
sketch2.addConstraint(Sketcher.Constraint("Perpendicular", 52, 53))
sketch2.addConstraint(Sketcher.Constraint("Parallel", 35, 54))
sketch2.addConstraint(Sketcher.Constraint("Perpendicular", 54, 55))
sketch2.addConstraint(Sketcher.Constraint("Perpendicular", 55, 56))
sketch2.addConstraint(Sketcher.Constraint("Perpendicular", 56, 57))
sketch2.addConstraint(Sketcher.Constraint("Parallel", 40, 58))
sketch2.addConstraint(Sketcher.Constraint("Perpendicular", 58, 59))
sketch2.addConstraint(Sketcher.Constraint("Parallel", 59, 60))
sketch2.addConstraint(Sketcher.Constraint("Perpendicular", 60, 61))
sketch2.addConstraint(Sketcher.Constraint("Perpendicular", 61, 62))
sketch2.addConstraint(Sketcher.Constraint("Parallel", 44, 63))
sketch2.addConstraint(Sketcher.Constraint("Perpendicular", 63, 64))
sketch2.addConstraint(Sketcher.Constraint("Parallel", 64, 65))
sketch2.addConstraint(Sketcher.Constraint("Perpendicular", 65, 66))
sketch2.addConstraint(Sketcher.Constraint("Perpendicular", 66, 67))
sketch2.addConstraint(Sketcher.Constraint("Parallel", 53, 72))
sketch2.addConstraint(Sketcher.Constraint("Perpendicular", 72, 73))
sketch2.addConstraint(Sketcher.Constraint("Parallel", 73, 74))
sketch2.addConstraint(Sketcher.Constraint("Perpendicular", 74, 75))
sketch2.addConstraint(Sketcher.Constraint("Perpendicular", 75, 76))
sketch2.addConstraint(Sketcher.Constraint("Parallel", 57, 77))
sketch2.addConstraint(Sketcher.Constraint("Perpendicular", 77, 78))
sketch2.addConstraint(Sketcher.Constraint("Perpendicular", 78, 79))
sketch2.addConstraint(Sketcher.Constraint("Perpendicular", 79, 80))
sketch2.addConstraint(Sketcher.Constraint("Parallel", 62, 81))
sketch2.addConstraint(Sketcher.Constraint("Perpendicular", 81, 82))
sketch2.addConstraint(Sketcher.Constraint("Perpendicular", 82, 83))
sketch2.addConstraint(Sketcher.Constraint("Perpendicular", 83, 84))
sketch2.addConstraint(Sketcher.Constraint("Parallel", 67, 85))
sketch2.addConstraint(Sketcher.Constraint("Perpendicular", 85, 86))
sketch2.addConstraint(Sketcher.Constraint("Parallel", 86, 87))
sketch2.addConstraint(Sketcher.Constraint("Perpendicular", 87, 88))
sketch2.addConstraint(Sketcher.Constraint("Perpendicular", 88, 89))
sketch2.addConstraint(Sketcher.Constraint("Horizontal", 44, 2, 49, 2))
sketch2.addConstraint(Sketcher.Constraint("Horizontal", 43, 2, 51, 2))
sketch2.addConstraint(Sketcher.Constraint("Horizontal", 42, 2, 52, 2))
sketch2.addConstraint(Sketcher.Constraint("Horizontal", 40, 2, 54, 2))
sketch2.addConstraint(Sketcher.Constraint("Horizontal", 39, 2, 55, 2))
sketch2.addConstraint(Sketcher.Constraint("Horizontal", 38, 2, 56, 2))
sketch2.addConstraint(Sketcher.Constraint("Horizontal", 35, 2, 58, 2))
sketch2.addConstraint(Sketcher.Constraint("Horizontal", 34, 2, 60, 2))
sketch2.addConstraint(Sketcher.Constraint("Horizontal", 33, 2, 61, 2))
sketch2.addConstraint(Sketcher.Constraint("Horizontal", 30, 2, 63, 2))
sketch2.addConstraint(Sketcher.Constraint("Horizontal", 29, 2, 65, 2))
sketch2.addConstraint(Sketcher.Constraint("Horizontal", 28, 2, 66, 2))
sketch2.addConstraint(Sketcher.Constraint("Horizontal", 25, 2, 68, 2))
sketch2.addConstraint(Sketcher.Constraint("Horizontal", 23, 2, 70, 2))
sketch2.addConstraint(Sketcher.Constraint("Horizontal", 21, 2, 72, 2))
sketch2.addConstraint(Sketcher.Constraint("Horizontal", 20, 2, 74, 2))
sketch2.addConstraint(Sketcher.Constraint("Horizontal", 19, 2, 75, 2))
sketch2.addConstraint(Sketcher.Constraint("Horizontal", 17, 2, 77, 2))
sketch2.addConstraint(Sketcher.Constraint("Horizontal", 16, 2, 78, 2))
sketch2.addConstraint(Sketcher.Constraint("Horizontal", 15, 2, 79, 2))
sketch2.addConstraint(Sketcher.Constraint("Horizontal", 13, 2, 81, 2))
sketch2.addConstraint(Sketcher.Constraint("Horizontal", 12, 2, 82, 2))
sketch2.addConstraint(Sketcher.Constraint("Horizontal", 11, 2, 83, 2))
sketch2.addConstraint(Sketcher.Constraint("Horizontal", 8, 2, 85, 2))
sketch2.addConstraint(Sketcher.Constraint("Horizontal", 7, 2, 87, 2))
sketch2.addConstraint(Sketcher.Constraint("Horizontal", 6, 2, 88, 2))
sketch2.addConstraint(Sketcher.Constraint("Vertical", 21, 2, 26, 2))
sketch2.addConstraint(Sketcher.Constraint("Vertical", 20, 2, 28, 2))
sketch2.addConstraint(Sketcher.Constraint("Vertical", 19, 2, 29, 2))
sketch2.addConstraint(Sketcher.Constraint("Vertical", 17, 2, 31, 2))
sketch2.addConstraint(Sketcher.Constraint("Vertical", 16, 2, 33, 2))
sketch2.addConstraint(Sketcher.Constraint("Vertical", 15, 2, 34, 2))
sketch2.addConstraint(Sketcher.Constraint("Vertical", 13, 2, 36, 2))
sketch2.addConstraint(Sketcher.Constraint("Vertical", 12, 2, 38, 2))
sketch2.addConstraint(Sketcher.Constraint("Vertical", 11, 2, 39, 2))
sketch2.addConstraint(Sketcher.Constraint("Vertical", 8, 2, 41, 2))
sketch2.addConstraint(Sketcher.Constraint("Vertical", 7, 2, 42, 2))
sketch2.addConstraint(Sketcher.Constraint("Vertical", 6, 2, 43, 2))
sketch2.addConstraint(Sketcher.Constraint("Vertical", 2, 2, 45, 2))
sketch2.addConstraint(Sketcher.Constraint("Vertical", 3, 2, 47, 2))
sketch2.addConstraint(Sketcher.Constraint("Vertical", 67, 2, 72, 2))
sketch2.addConstraint(Sketcher.Constraint("Vertical", 66, 2, 74, 2))
sketch2.addConstraint(Sketcher.Constraint("Vertical", 62, 2, 77, 2))
sketch2.addConstraint(Sketcher.Constraint("Vertical", 61, 2, 78, 2))
sketch2.addConstraint(Sketcher.Constraint("Vertical", 57, 2, 81, 2))
sketch2.addConstraint(Sketcher.Constraint("Vertical", 53, 2, 85, 2))
sketch2.addConstraint(Sketcher.Constraint("Equal", 25, 69))
sketch2.addConstraint(Sketcher.Constraint("Equal", 71, 0))
sketch2.addConstraint(Sketcher.Constraint("Equal", 47, 22))
sketch2.addConstraint(Sketcher.Constraint("Equal", 2, 46))
sketch2.addConstraint(Sketcher.Constraint("Equal", 5, 6))
sketch2.addConstraint(Sketcher.Constraint("Equal", 7, 9))
sketch2.addConstraint(Sketcher.Constraint("Equal", 6, 10))
sketch2.addConstraint(Sketcher.Constraint("Equal", 10, 11))
sketch2.addConstraint(Sketcher.Constraint("Equal", 12, 14))
sketch2.addConstraint(Sketcher.Constraint("Equal", 13, 15))
sketch2.addConstraint(Sketcher.Constraint("Equal", 16, 18))
sketch2.addConstraint(Sketcher.Constraint("Equal", 17, 19))
sketch2.addConstraint(Sketcher.Constraint("Equal", 11, 27))
sketch2.addConstraint(Sketcher.Constraint("Equal", 28, 32))
sketch2.addConstraint(Sketcher.Constraint("Equal", 33, 37))
sketch2.addConstraint(Sketcher.Constraint("Equal", 38, 50))
sketch2.addConstraint(Sketcher.Constraint("Equal", 51, 59))
sketch2.addConstraint(Sketcher.Constraint("Equal", 60, 64))
sketch2.addConstraint(Sketcher.Constraint("Equal", 65, 73))
sketch2.addConstraint(Sketcher.Constraint("Equal", 74, 86))
sketch2.addConstraint(Sketcher.Constraint("DistanceX", 1, 1, 1, 2, 5.0))
sketch2.addConstraint(Sketcher.Constraint("DistanceX", 23, 1, 23, 2, 2.0))
sketch2.addConstraint(Sketcher.Constraint("Angle", 4, Q("-162.000001 deg")))
sketch2.addConstraint(Sketcher.Constraint("Angle", 9, Q("-144.000003 deg")))
sketch2.addConstraint(Sketcher.Constraint("Distance", 4, 5.0))
sketch2.addConstraint(Sketcher.Constraint("Distance", 5, 1.0))
sketch2.addConstraint(Sketcher.Constraint("DistanceY", -1, 1, 12, 2, 17.599002))
sketch2.addConstraint(Sketcher.Constraint("DistanceY", -1, 1, 0, 2, 19.949199))
sketch2.addConstraint(Sketcher.Constraint("DistanceY", -1, 1, 4, 2, 20.0999))
sketch2.addConstraint(Sketcher.Constraint("DistanceX", 15, 2, -1, 1, 17.7514))
sketch2.addConstraint(Sketcher.Constraint("DistanceY", -1, 1, 19, 2, 3.751898))
sketch2.addConstraint(Sketcher.Constraint("DistanceY", 22, 2, -1, 1, 2.550801))
sketch2.addConstraint(Sketcher.Constraint("DistanceY", 27, 2, -1, 1, 8.917799))
sketch2.addConstraint(Sketcher.Constraint("DistanceY", 45, 2, -1, 1, 22.050801))
sketch2.addConstraint(Sketcher.Constraint("DistanceX", 8, 2, -1, 1, 4.522329))
sketch2.addConstraint(Sketcher.Constraint("DistanceX", 10, 2, -1, 1, 14.467629))
sketch2.addConstraint(Sketcher.Constraint("DistanceX", 19, 2, -1, 1, 19.895269))
sketch2.addConstraint(Sketcher.Constraint("DistanceY", 31, 2, -1, 1, 15.004619))
sketch2.addConstraint(Sketcher.Constraint("DistanceY", 36, 2, -1, 1, 19.318638))
sketch2.addConstraint(Sketcher.Constraint("DistanceY", 43, 2, -1, 1, 18.299389))
sketch2.addConstraint(Sketcher.Constraint("DistanceX", -1, 1, 49, 2, 9.074419))
sketch2.addConstraint(Sketcher.Constraint("DistanceX", -1, 1, 54, 2, 14.852221))
sketch2.addConstraint(Sketcher.Constraint("DistanceX", -1, 1, 58, 2, 19.16624))
sketch2.addConstraint(Sketcher.Constraint("DistanceX", -1, 1, 63, 2, 21.594189))
sketch2.addConstraint(Sketcher.Constraint("DistanceX", 0, 2, -1, 1, 2.601597))
sketch2.addConstraint(Sketcher.Constraint("DistanceY", -1, 1, 14, 2, 10.857932))
sketch2.addConstraint(Sketcher.Constraint("DistanceX", 22, 2, -1, 1, 22.101597))
sketch2.addConstraint(Sketcher.Constraint("DistanceX", -1, 1, 68, 2, 21.898403))
pocket1 = body.newObject("PartDesign::Pocket", "Pocket")
pocket1.Profile = sketch2
pocket1.Type = "ThroughAll"

sketch3 = body.newObject("Sketcher::SketchObject", "Sketch002")
sketch3.AttachmentSupport = (doc.getObject("XZ_Plane"), [""])
sketch3.MapMode = "FlatFace"
sketch3.AttachmentOffset = App.Placement(V(0, 0, 5), App.Rotation())
sketch3.addGeometry(Part.Circle(V(0, 0, 0), V(0, 0, 1), 10), False)
sketch3.addConstraint(Sketcher.Constraint("Coincident", 0, 3, -1, 1))
sketch3.addConstraint(Sketcher.Constraint("Diameter", 0, 19.95))
pad2 = body.newObject("PartDesign::Pad", "Pad001")
pad2.Profile = sketch3
pad2.Length = 4.9

doc.recompute()
